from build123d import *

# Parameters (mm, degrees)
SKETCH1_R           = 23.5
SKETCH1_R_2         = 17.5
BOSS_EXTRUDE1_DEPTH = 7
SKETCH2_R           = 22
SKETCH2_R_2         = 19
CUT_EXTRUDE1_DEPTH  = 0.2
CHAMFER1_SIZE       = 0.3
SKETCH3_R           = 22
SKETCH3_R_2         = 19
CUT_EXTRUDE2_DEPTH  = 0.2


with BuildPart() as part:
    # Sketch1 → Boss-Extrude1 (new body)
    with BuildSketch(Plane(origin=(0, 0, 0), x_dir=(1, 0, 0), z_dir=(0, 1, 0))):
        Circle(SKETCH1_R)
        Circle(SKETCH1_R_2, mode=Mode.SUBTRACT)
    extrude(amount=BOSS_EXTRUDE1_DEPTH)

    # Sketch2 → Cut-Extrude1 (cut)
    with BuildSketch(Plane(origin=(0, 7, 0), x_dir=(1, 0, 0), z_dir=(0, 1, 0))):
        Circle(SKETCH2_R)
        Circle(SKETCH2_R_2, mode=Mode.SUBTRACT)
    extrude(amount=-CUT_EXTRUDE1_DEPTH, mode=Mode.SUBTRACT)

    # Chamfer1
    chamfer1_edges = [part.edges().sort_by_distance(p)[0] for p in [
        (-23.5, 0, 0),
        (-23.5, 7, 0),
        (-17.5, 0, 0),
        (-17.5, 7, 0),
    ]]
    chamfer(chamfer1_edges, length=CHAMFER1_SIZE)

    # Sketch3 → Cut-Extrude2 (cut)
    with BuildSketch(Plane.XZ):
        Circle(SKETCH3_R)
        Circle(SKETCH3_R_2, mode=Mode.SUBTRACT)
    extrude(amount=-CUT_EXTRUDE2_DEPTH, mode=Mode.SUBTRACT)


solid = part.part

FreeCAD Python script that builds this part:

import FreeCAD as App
import Part
import Sketcher

V = App.Vector


def edges_at(feature, points):
    """Names of the edges that pass closest to the given points."""
    edges = feature.Shape.Edges
    near = lambda p: min(range(len(edges)), key=lambda i: edges[i].distToShape(Part.Vertex(*p))[0])
    return sorted({f"Edge{near(p) + 1}" for p in points})

doc = App.newDocument("Part")
body = doc.addObject("PartDesign::Body", "Body")

# Sketch on XZ plane
sketch1 = body.newObject("Sketcher::SketchObject", "Sketch")
sketch1.AttachmentSupport = (doc.getObject("XZ_Plane"), [""])
sketch1.MapMode = "FlatFace"
sketch1.addGeometry([
    Part.Circle(V(0, 0, 0), V(0, 0, 1), 24),
    Part.Circle(V(0, 0, 0), V(0, 0, 1), 18),
], False)
sketch1.addConstraint([
    Sketcher.Constraint("Coincident", 0, 3, -1, 1),
    Sketcher.Constraint("Coincident", 1, 3, -1, 1),
    Sketcher.Constraint("Diameter", 0, 47.0),
    Sketcher.Constraint("Diameter", 1, 35.0),
])
pad1 = body.newObject("PartDesign::Pad", "Pad")
pad1.Profile = sketch1
pad1.Length = 7
pad1.Reversed = True

# Sketch on XZ plane
sketch2 = body.newObject("Sketcher::SketchObject", "Sketch001")
sketch2.AttachmentSupport = (doc.getObject("XZ_Plane"), [""])
sketch2.MapMode = "FlatFace"
sketch2.AttachmentOffset = App.Placement(V(0, 0, -7), App.Rotation())
sketch2.addGeometry([
    Part.Circle(V(0, 0, 0), V(0, 0, 1), 22),
    Part.Circle(V(0, 0, 0), V(0, 0, 1), 19),
], False)
sketch2.addConstraint([
    Sketcher.Constraint("Coincident", 0, 3, -1, 1),
    Sketcher.Constraint("Coincident", 1, 3, -1, 1),
    Sketcher.Constraint("Diameter", 0, 44.0),
    Sketcher.Constraint("Diameter", 1, 38.0),
])
pocket1 = body.newObject("PartDesign::Pocket", "Pocket")
pocket1.Profile = sketch2
pocket1.Length = 0.2
pocket1.Reversed = True
doc.recompute()

chamfer = body.newObject("PartDesign::Chamfer", "Chamfer")
chamfer.Base = (pocket1, edges_at(pocket1, [
    (-23.5, 0, 0),
    (-23.5, 7, 0),
    (-17.5, 0, 0),
    (-17.5, 7, 0),
]))
chamfer.Size = 0.3

# Sketch on XZ plane
sketch3 = body.newObject("Sketcher::SketchObject", "Sketch002")
sketch3.AttachmentSupport = (doc.getObject("XZ_Plane"), [""])
sketch3.MapMode = "FlatFace"
sketch3.addGeometry([
    Part.Circle(V(0, 0, 0), V(0, 0, 1), 22),
    Part.Circle(V(0, 0, 0), V(0, 0, 1), 19),
], False)
sketch3.addConstraint([
    Sketcher.Constraint("Coincident", 0, 3, -1, 1),
    Sketcher.Constraint("Coincident", 1, 3, -1, 1),
    Sketcher.Constraint("Diameter", 0, 44.0),
    Sketcher.Constraint("Diameter", 1, 38.0),
])
pocket2 = body.newObject("PartDesign::Pocket", "Pocket001")
pocket2.Profile = sketch3
pocket2.Length = 0.2

doc.recompute()
